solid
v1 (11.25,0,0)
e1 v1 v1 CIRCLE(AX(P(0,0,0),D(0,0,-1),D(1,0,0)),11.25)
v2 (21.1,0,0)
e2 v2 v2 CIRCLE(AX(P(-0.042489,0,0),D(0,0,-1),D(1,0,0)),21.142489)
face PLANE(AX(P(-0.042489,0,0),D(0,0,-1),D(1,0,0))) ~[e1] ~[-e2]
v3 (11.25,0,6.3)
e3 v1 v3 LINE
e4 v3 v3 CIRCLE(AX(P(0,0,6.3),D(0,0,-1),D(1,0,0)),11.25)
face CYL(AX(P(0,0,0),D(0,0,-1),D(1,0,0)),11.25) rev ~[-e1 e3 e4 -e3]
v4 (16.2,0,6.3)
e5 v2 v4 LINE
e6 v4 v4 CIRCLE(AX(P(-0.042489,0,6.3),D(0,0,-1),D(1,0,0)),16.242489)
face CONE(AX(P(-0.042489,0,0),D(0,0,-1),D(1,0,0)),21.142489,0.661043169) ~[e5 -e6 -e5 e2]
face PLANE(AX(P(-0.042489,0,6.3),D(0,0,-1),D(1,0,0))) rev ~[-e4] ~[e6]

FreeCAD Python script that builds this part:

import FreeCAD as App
import Part
import Sketcher
Q = App.Units.Quantity


def add_polygon(sketch, points):
    """Adds a closed chain of lines whose ends are joined by coincident constraints."""
    first, n = sketch.GeometryCount, len(points)
    for a, b in zip(points, points[1:] + points[:1]):
        sketch.addGeometry(Part.LineSegment(App.Vector(*a, 0), App.Vector(*b, 0)), False)
    for i in range(n):
        sketch.addConstraint(Sketcher.Constraint("Coincident", first + i, 2, first + (i + 1) % n, 1))

doc = App.newDocument("Part")
body = doc.addObject("PartDesign::Body", "Body")

# Sketch on XZ plane
sketch1 = body.newObject("Sketcher::SketchObject", "Sketch")
sketch1.AttachmentSupport = (doc.getObject("XZ_Plane"), [""])
sketch1.MapMode = "FlatFace"
add_polygon(sketch1, [(0, 6), (0, 0), (21, 0), (16, 6)])  # lines 0-3
sketch1.addGeometry(Part.LineSegment(App.Vector(0, 6, 0), App.Vector(0, 0, 0)), True)  # axis
sketch1.addConstraint([
    Sketcher.Constraint("Vertical", 0),
    Sketcher.Constraint("Horizontal", 1),
    Sketcher.Constraint("Horizontal", 3),
    Sketcher.Constraint("Vertical", 4),
    Sketcher.Constraint("Coincident", 0, 2, -1, 1),
    Sketcher.Constraint("PointOnObject", 4, 2, -1),
    Sketcher.Constraint("Horizontal", 3, 2, 4, 1),
    Sketcher.Constraint("DistanceX", 1, 1, 1, 2, Q("21.1 mm")),
    Sketcher.Constraint("DistanceX", 3, 2, 3, 1, Q("16.2 mm")),
    Sketcher.Constraint("DistanceY", 0, 2, 0, 1, Q("6.3 mm")),
    Sketcher.Constraint("DistanceX", 4, 1, -1, 1, Q("0.042489 mm")),
])
revolution = body.newObject("PartDesign::Revolution", "Revolution")
revolution.Profile = sketch1
revolution.ReferenceAxis = (sketch1, ["Axis0"])
revolution.Angle = 360

# Sketch on XY plane
sketch2 = body.newObject("Sketcher::SketchObject", "Sketch001")
sketch2.AttachmentSupport = (doc.getObject("XY_Plane"), [""])
sketch2.MapMode = "FlatFace"
sketch2.addGeometry([
    Part.Circle(App.Vector(0, 0, 0), App.Vector(0, 0, 1), 11.25),
    Part.Circle(App.Vector(-0.042, 0, 0), App.Vector(0, 0, 1), 0.042),
], False)
sketch2.addConstraint([
    Sketcher.Constraint("Coincident", 0, 3, -1, 1),
    Sketcher.Constraint("PointOnObject", 1, 3, -1),
    Sketcher.Constraint("Diameter", 0, Q("22.5 mm")),
    Sketcher.Constraint("Diameter", 1, Q("0.084978 mm")),
    Sketcher.Constraint("DistanceX", 1, 3, -1, 1, Q("0.042489 mm")),
])
pocket1 = body.newObject("PartDesign::Pocket", "Pocket")
pocket1.Profile = sketch2
pocket1.Length = 7
pocket1.Reversed = True

doc.recompute()
